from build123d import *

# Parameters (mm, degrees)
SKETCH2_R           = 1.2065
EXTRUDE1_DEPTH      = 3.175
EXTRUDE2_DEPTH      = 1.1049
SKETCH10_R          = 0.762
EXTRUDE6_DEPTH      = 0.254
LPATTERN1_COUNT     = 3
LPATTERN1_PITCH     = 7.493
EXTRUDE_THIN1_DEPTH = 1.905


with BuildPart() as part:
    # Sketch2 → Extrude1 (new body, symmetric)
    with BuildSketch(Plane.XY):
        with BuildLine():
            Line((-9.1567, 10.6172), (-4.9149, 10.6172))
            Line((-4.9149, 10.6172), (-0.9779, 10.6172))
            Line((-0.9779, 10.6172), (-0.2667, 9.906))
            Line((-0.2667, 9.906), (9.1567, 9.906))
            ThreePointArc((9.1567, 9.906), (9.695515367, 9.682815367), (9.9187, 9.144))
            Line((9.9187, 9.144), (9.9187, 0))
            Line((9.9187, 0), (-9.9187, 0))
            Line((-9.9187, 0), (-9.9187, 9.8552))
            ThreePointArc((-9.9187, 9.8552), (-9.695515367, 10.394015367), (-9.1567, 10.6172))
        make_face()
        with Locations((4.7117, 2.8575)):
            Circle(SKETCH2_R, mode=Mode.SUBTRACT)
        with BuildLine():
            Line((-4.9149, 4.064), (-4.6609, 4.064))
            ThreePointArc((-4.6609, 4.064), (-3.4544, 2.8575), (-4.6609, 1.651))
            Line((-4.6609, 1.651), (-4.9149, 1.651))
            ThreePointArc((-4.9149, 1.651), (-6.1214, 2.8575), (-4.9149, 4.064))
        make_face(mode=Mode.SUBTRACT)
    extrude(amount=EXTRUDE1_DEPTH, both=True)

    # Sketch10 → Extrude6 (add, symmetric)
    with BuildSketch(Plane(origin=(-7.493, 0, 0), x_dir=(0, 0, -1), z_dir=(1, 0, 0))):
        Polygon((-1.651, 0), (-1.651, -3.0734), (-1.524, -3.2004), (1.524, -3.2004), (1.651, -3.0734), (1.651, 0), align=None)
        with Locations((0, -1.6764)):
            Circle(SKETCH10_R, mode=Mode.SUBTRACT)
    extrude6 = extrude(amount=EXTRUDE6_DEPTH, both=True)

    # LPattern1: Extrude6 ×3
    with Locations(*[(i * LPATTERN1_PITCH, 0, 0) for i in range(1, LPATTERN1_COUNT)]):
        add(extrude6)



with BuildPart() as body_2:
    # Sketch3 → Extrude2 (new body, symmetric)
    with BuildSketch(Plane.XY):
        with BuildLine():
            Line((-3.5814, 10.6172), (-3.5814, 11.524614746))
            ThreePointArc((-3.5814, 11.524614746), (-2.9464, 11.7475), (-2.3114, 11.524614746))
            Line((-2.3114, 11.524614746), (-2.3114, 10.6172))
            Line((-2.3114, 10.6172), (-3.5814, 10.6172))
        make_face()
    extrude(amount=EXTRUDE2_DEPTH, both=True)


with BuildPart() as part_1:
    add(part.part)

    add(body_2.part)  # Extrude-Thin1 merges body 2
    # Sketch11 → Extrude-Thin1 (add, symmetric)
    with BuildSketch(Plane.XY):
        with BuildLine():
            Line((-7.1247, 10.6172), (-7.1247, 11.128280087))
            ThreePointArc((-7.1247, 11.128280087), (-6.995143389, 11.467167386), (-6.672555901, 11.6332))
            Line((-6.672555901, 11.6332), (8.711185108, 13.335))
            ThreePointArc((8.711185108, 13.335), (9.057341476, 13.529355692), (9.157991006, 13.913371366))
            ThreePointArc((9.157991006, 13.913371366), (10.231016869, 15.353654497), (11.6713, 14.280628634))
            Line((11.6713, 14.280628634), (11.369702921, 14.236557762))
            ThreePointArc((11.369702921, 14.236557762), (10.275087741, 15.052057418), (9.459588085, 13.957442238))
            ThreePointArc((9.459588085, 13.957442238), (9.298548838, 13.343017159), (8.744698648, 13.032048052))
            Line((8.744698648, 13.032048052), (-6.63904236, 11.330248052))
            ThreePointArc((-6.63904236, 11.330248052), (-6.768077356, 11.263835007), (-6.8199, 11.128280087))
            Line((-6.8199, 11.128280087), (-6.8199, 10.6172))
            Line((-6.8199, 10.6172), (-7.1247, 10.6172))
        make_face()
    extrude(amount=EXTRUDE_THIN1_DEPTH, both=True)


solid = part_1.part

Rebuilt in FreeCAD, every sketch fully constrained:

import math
import FreeCAD as App
import Part
import Sketcher
Q = App.Units.Quantity

doc = App.newDocument("Part")
body = doc.addObject("PartDesign::Body", "Body")

# Sketch on XY plane
sketch1 = body.newObject("Sketcher::SketchObject", "Sketch")
sketch1.AttachmentSupport = (doc.getObject("XY_Plane"), [""])
sketch1.MapMode = "FlatFace"
sketch1.addGeometry(Part.LineSegment(App.Vector(-0.98, 10.62, 0), App.Vector(-9.16, 10.62, 0)), False)
sketch1.addGeometry(Part.ArcOfCircle(Part.Circle(App.Vector(-9.16, 9.86, 0), App.Vector(0, 0, 1), 0.76), math.radians(90), math.radians(180)), False)
sketch1.addGeometry(Part.LineSegment(App.Vector(-9.92, 9.86, 0), App.Vector(-9.92, 0, 0)), False)
sketch1.addGeometry(Part.LineSegment(App.Vector(-9.92, 0, 0), App.Vector(9.92, 0, 0)), False)
sketch1.addGeometry(Part.LineSegment(App.Vector(9.92, 0, 0), App.Vector(9.92, 9.14, 0)), False)
sketch1.addGeometry(Part.ArcOfCircle(Part.Circle(App.Vector(9.16, 9.14, 0), App.Vector(0, 0, 1), 0.76), math.radians(0), math.radians(90)), False)
sketch1.addGeometry(Part.LineSegment(App.Vector(9.16, 9.91, 0), App.Vector(-0.27, 9.91, 0)), False)
sketch1.addGeometry(Part.LineSegment(App.Vector(-0.27, 9.91, 0), App.Vector(-0.98, 10.62, 0)), False)
sketch1.addGeometry(Part.Circle(App.Vector(4.71, 2.86, 0), App.Vector(0, 0, 1), 1.21), False)
sketch1.addGeometry(Part.LineSegment(App.Vector(-4.91, 4.06, 0), App.Vector(-4.66, 4.06, 0)), False)
sketch1.addGeometry(Part.ArcOfCircle(Part.Circle(App.Vector(-4.66, 2.86, 0), App.Vector(0, 0, 1), 1.21), math.radians(-90), math.radians(90)), False)
sketch1.addGeometry(Part.LineSegment(App.Vector(-4.66, 1.65, 0), App.Vector(-4.91, 1.65, 0)), False)
sketch1.addGeometry(Part.ArcOfCircle(Part.Circle(App.Vector(-4.91, 2.86, 0), App.Vector(0, 0, 1), 1.21), math.radians(90), math.radians(270)), False)
sketch1.addConstraint(Sketcher.Constraint("Tangent", 0, 2, 1, 1))
sketch1.addConstraint(Sketcher.Constraint("Tangent", 1, 2, 2, 1))
sketch1.addConstraint(Sketcher.Constraint("Coincident", 2, 2, 3, 1))
sketch1.addConstraint(Sketcher.Constraint("Coincident", 3, 2, 4, 1))
sketch1.addConstraint(Sketcher.Constraint("Tangent", 4, 2, 5, 1))
sketch1.addConstraint(Sketcher.Constraint("Tangent", 5, 2, 6, 1))
sketch1.addConstraint(Sketcher.Constraint("Coincident", 6, 2, 7, 1))
sketch1.addConstraint(Sketcher.Constraint("Coincident", 7, 2, 0, 1))
sketch1.addConstraint(Sketcher.Constraint("Tangent", 9, 2, 10, 2))
sketch1.addConstraint(Sketcher.Constraint("Tangent", 10, 1, 11, 1))
sketch1.addConstraint(Sketcher.Constraint("Tangent", 11, 2, 12, 2))
sketch1.addConstraint(Sketcher.Constraint("Tangent", 12, 1, 9, 1))
sketch1.addConstraint(Sketcher.Constraint("Horizontal", 0))
sketch1.addConstraint(Sketcher.Constraint("Vertical", 2))
sketch1.addConstraint(Sketcher.Constraint("Horizontal", 3))
sketch1.addConstraint(Sketcher.Constraint("Vertical", 4))
sketch1.addConstraint(Sketcher.Constraint("Horizontal", 6))
sketch1.addConstraint(Sketcher.Constraint("Horizontal", 9))
sketch1.addConstraint(Sketcher.Constraint("Horizontal", 11))
sketch1.addConstraint(Sketcher.Constraint("Equal", 1, 5))
sketch1.addConstraint(Sketcher.Constraint("Equal", 8, 10))
sketch1.addConstraint(Sketcher.Constraint("Symmetric", 2, 2, 3, 2, -1, 1))
sketch1.addConstraint(Sketcher.Constraint("Horizontal", 8, 3, 10, 3))
sketch1.addConstraint(Sketcher.Constraint("Radius", 1, Q("0.03 in")))
sketch1.addConstraint(Sketcher.Constraint("Diameter", 8, Q("0.095 in")))
sketch1.addConstraint(Sketcher.Constraint("Angle", 7, Q("135 deg")))
sketch1.addConstraint(Sketcher.Constraint("DistanceX", 9, 1, 9, 2, Q("0.01 in")))
sketch1.addConstraint(Sketcher.Constraint("DistanceY", 4, 1, 4, 2, Q("0.36 in")))
sketch1.addConstraint(Sketcher.Constraint("DistanceX", 0, 2, 0, 1, Q("0.322 in")))
sketch1.addConstraint(Sketcher.Constraint("DistanceX", 3, 1, 3, 2, Q("0.781 in")))
sketch1.addConstraint(Sketcher.Constraint("DistanceX", 6, 2, 6, 1, Q("0.371 in")))
sketch1.addConstraint(Sketcher.Constraint("DistanceY", -1, 1, 9, 2, Q("0.16 in")))
sketch1.addConstraint(Sketcher.Constraint("DistanceX", 8, 3, 5, 3, Q("0.175 in")))
sketch1.addConstraint(Sketcher.Constraint("DistanceX", 1, 3, 10, 3, Q("0.177 in")))
pad1 = body.newObject("PartDesign::Pad", "Pad")
pad1.Profile = sketch1
pad1.Length = Q("0.25 in")
pad1.Midplane = True

# Sketch on YZ plane
sketch2 = body.newObject("Sketcher::SketchObject", "Sketch001")
sketch2.AttachmentSupport = (doc.getObject("YZ_Plane"), [""])
sketch2.MapMode = "FlatFace"
sketch2.AttachmentOffset = App.Placement(App.Vector(0, 0, -0.295 * 25.4), App.Rotation())
sketch2.addGeometry(Part.LineSegment(App.Vector(0, 1.65, 0), App.Vector(-3.07, 1.65, 0)), False)
sketch2.addGeometry(Part.LineSegment(App.Vector(-3.07, 1.65, 0), App.Vector(-3.2, 1.52, 0)), False)
sketch2.addGeometry(Part.LineSegment(App.Vector(-3.2, 1.52, 0), App.Vector(-3.2, -1.52, 0)), False)
sketch2.addGeometry(Part.LineSegment(App.Vector(-3.2, -1.52, 0), App.Vector(-3.07, -1.65, 0)), False)
sketch2.addGeometry(Part.LineSegment(App.Vector(-3.07, -1.65, 0), App.Vector(0, -1.65, 0)), False)
sketch2.addGeometry(Part.LineSegment(App.Vector(0, -1.65, 0), App.Vector(0, 1.65, 0)), False)
sketch2.addGeometry(Part.Circle(App.Vector(-1.68, 0, 0), App.Vector(0, 0, 1), 0.76), False)
sketch2.addConstraint(Sketcher.Constraint("Coincident", 0, 2, 1, 1))
sketch2.addConstraint(Sketcher.Constraint("Coincident", 1, 2, 2, 1))
sketch2.addConstraint(Sketcher.Constraint("Coincident", 2, 2, 3, 1))
sketch2.addConstraint(Sketcher.Constraint("Coincident", 3, 2, 4, 1))
sketch2.addConstraint(Sketcher.Constraint("Coincident", 4, 2, 5, 1))
sketch2.addConstraint(Sketcher.Constraint("Coincident", 5, 2, 0, 1))
sketch2.addConstraint(Sketcher.Constraint("Horizontal", 0))
sketch2.addConstraint(Sketcher.Constraint("Vertical", 2))
sketch2.addConstraint(Sketcher.Constraint("Horizontal", 4))
sketch2.addConstraint(Sketcher.Constraint("Vertical", 5))
sketch2.addConstraint(Sketcher.Constraint("Symmetric", 4, 2, 5, 2, -1, 1))
sketch2.addConstraint(Sketcher.Constraint("PointOnObject", 6, 3, -1))
sketch2.addConstraint(Sketcher.Constraint("Perpendicular", 1, 3))
sketch2.addConstraint(Sketcher.Constraint("Vertical", 0, 2, 3, 2))
sketch2.addConstraint(Sketcher.Constraint("Equal", 1, 3))
sketch2.addConstraint(Sketcher.Constraint("Diameter", 6, Q("0.06 in")))
sketch2.addConstraint(Sketcher.Constraint("DistanceY", 2, 2, 2, 1, Q("0.12 in")))
sketch2.addConstraint(Sketcher.Constraint("DistanceY", 5, 1, 5, 2, Q("0.13 in")))
sketch2.addConstraint(Sketcher.Constraint("DistanceX", 0, 2, 0, 1, Q("0.121 in")))
sketch2.addConstraint(Sketcher.Constraint("DistanceX", 1, 2, 6, 3, Q("0.06 in")))
pad2 = body.newObject("PartDesign::Pad", "Pad001")
pad2.Profile = sketch2
pad2.Length = Q("0.02 in")
pad2.Midplane = True
doc.recompute()

linearpattern = body.newObject("PartDesign::LinearPattern", "LinearPattern")
linearpattern.Originals = [pad2]
linearpattern.Direction = (doc.getObject("X_Axis"), [""])
linearpattern.Mode = "offset"
linearpattern.Offset = Q("0.295 in")
linearpattern.Occurrences = 3
body.Tip = linearpattern
body2 = doc.addObject("PartDesign::Body", "Body001")

# Sketch on XY plane
sketch3 = body2.newObject("Sketcher::SketchObject", "Sketch002")
sketch3.AttachmentSupport = (doc.getObject("XY_Plane001"), [""])
sketch3.MapMode = "FlatFace"
sketch3.addGeometry(Part.LineSegment(App.Vector(-3.6, 11.5, 0), App.Vector(-3.6, 10.6, 0)), False)
sketch3.addGeometry(Part.LineSegment(App.Vector(-3.6, 10.6, 0), App.Vector(-2.3, 10.6, 0)), False)
sketch3.addGeometry(Part.LineSegment(App.Vector(-2.3, 10.6, 0), App.Vector(-2.3, 11.5, 0)), False)
sketch3.addGeometry(Part.ArcOfCircle(Part.Circle(App.Vector(-2.9, 10.7, 0), App.Vector(0, 0, 1), 1), math.radians(51), math.radians(129)), False)
sketch3.addConstraint(Sketcher.Constraint("Coincident", 0, 2, 1, 1))
sketch3.addConstraint(Sketcher.Constraint("Coincident", 1, 2, 2, 1))
sketch3.addConstraint(Sketcher.Constraint("Coincident", 2, 2, 3, 1))
sketch3.addConstraint(Sketcher.Constraint("Coincident", 3, 2, 0, 1))
sketch3.addConstraint(Sketcher.Constraint("Vertical", 0))
sketch3.addConstraint(Sketcher.Constraint("Horizontal", 1))
sketch3.addConstraint(Sketcher.Constraint("Vertical", 2))
sketch3.addConstraint(Sketcher.Constraint("Horizontal", 2, 2, 3, 2))
sketch3.addConstraint(Sketcher.Constraint("Radius", 3, Q("0.04 in")))
sketch3.addConstraint(Sketcher.Constraint("DistanceX", 1, 1, 1, 2, Q("0.05 in")))
sketch3.addConstraint(Sketcher.Constraint("DistanceX", 3, 3, -1, 1, Q("0.116 in")))
sketch3.addConstraint(Sketcher.Constraint("DistanceY", -1, 1, 0, 2, Q("0.418 in")))
sketch3.addConstraint(Sketcher.Constraint("DistanceY", -1, 1, 3, 3, Q("0.4225 in")))
pad3 = body2.newObject("PartDesign::Pad", "Pad002")
pad3.Profile = sketch3
pad3.Length = Q("0.087 in")
pad3.Midplane = True
doc.recompute()

boolean = body.newObject("PartDesign::Boolean", "Boolean")
boolean.Type = "Fuse"
boolean.addObjects([body2])

# Sketch on XY plane
sketch4 = body.newObject("Sketcher::SketchObject", "Sketch003")
sketch4.AttachmentSupport = (doc.getObject("XY_Plane"), [""])
sketch4.MapMode = "FlatFace"
sketch4.addGeometry(Part.LineSegment(App.Vector(-7.12, 11.13, 0), App.Vector(-7.12, 10.62, 0)), False)
sketch4.addGeometry(Part.LineSegment(App.Vector(-7.12, 10.62, 0), App.Vector(-6.82, 10.62, 0)), False)
sketch4.addGeometry(Part.LineSegment(App.Vector(-6.82, 10.62, 0), App.Vector(-6.82, 11.13, 0)), False)
sketch4.addGeometry(Part.ArcOfCircle(Part.Circle(App.Vector(-6.62, 11.13, 0), App.Vector(0, 0, 1), 0.2), math.radians(96), math.radians(180)), False)
sketch4.addGeometry(Part.LineSegment(App.Vector(-6.64, 11.33, 0), App.Vector(8.74, 13.03, 0)), False)
sketch4.addGeometry(Part.ArcOfCircle(Part.Circle(App.Vector(8.66, 13.84, 0), App.Vector(0, 0, 1), 0.81), math.radians(-84), math.radians(8)), False)
sketch4.addGeometry(Part.ArcOfCircle(Part.Circle(App.Vector(10.41, 14.1, 0), App.Vector(0, 0, 1), 0.97), math.radians(8), math.radians(188)), False)
sketch4.addGeometry(Part.LineSegment(App.Vector(11.37, 14.24, 0), App.Vector(11.67, 14.28, 0)), False)
sketch4.addGeometry(Part.ArcOfCircle(Part.Circle(App.Vector(10.41, 14.1, 0), App.Vector(0, 0, 1), 1.27), math.radians(8), math.radians(188)), False)
sketch4.addGeometry(Part.ArcOfCircle(Part.Circle(App.Vector(8.66, 13.84, 0), App.Vector(0, 0, 1), 0.51), math.radians(-84), math.radians(8)), False)
sketch4.addGeometry(Part.LineSegment(App.Vector(8.71, 13.34, 0), App.Vector(-6.67, 11.63, 0)), False)
sketch4.addGeometry(Part.ArcOfCircle(Part.Circle(App.Vector(-6.62, 11.13, 0), App.Vector(0, 0, 1), 0.51), math.radians(96), math.radians(180)), False)
sketch4.addConstraint(Sketcher.Constraint("Coincident", 0, 2, 1, 1))
sketch4.addConstraint(Sketcher.Constraint("Coincident", 1, 2, 2, 1))
sketch4.addConstraint(Sketcher.Constraint("Tangent", 2, 2, 3, 2))
sketch4.addConstraint(Sketcher.Constraint("Tangent", 3, 1, 4, 1))
sketch4.addConstraint(Sketcher.Constraint("Tangent", 4, 2, 5, 1))
sketch4.addConstraint(Sketcher.Constraint("Tangent", 5, 2, 6, 2))
sketch4.addConstraint(Sketcher.Constraint("Coincident", 6, 1, 7, 1))
sketch4.addConstraint(Sketcher.Constraint("Coincident", 7, 2, 8, 1))
sketch4.addConstraint(Sketcher.Constraint("Tangent", 8, 2, 9, 2))
sketch4.addConstraint(Sketcher.Constraint("Tangent", 9, 1, 10, 1))
sketch4.addConstraint(Sketcher.Constraint("Tangent", 10, 2, 11, 1))
sketch4.addConstraint(Sketcher.Constraint("Tangent", 11, 2, 0, 1))
sketch4.addConstraint(Sketcher.Constraint("Vertical", 0))
sketch4.addConstraint(Sketcher.Constraint("Horizontal", 1))
sketch4.addConstraint(Sketcher.Constraint("Vertical", 2))
sketch4.addConstraint(Sketcher.Constraint("Coincident", 8, 3, 6, 3))
sketch4.addConstraint(Sketcher.Constraint("Coincident", 9, 3, 5, 3))
sketch4.addConstraint(Sketcher.Constraint("Coincident", 11, 3, 3, 3))
sketch4.addConstraint(Sketcher.Constraint("Equal", 9, 11))
sketch4.addConstraint(Sketcher.Constraint("Parallel", 4, 10))
sketch4.addConstraint(Sketcher.Constraint("Radius", 8, Q("0.05 in")))
sketch4.addConstraint(Sketcher.Constraint("Radius", 9, Q("0.02 in")))
sketch4.addConstraint(Sketcher.Constraint("Radius", 3, Q("0.008 in")))
sketch4.addConstraint(Sketcher.Constraint("DistanceY", 1, 2, 10, 2, Q("0.04 in")))
sketch4.addConstraint(Sketcher.Constraint("DistanceY", -1, 1, 6, 3, Q("0.555 in")))
sketch4.addConstraint(Sketcher.Constraint("DistanceY", -1, 1, 0, 2, Q("0.418 in")))
sketch4.addConstraint(Sketcher.Constraint("DistanceY", -1, 1, 9, 1, Q("0.525 in")))
sketch4.addConstraint(Sketcher.Constraint("DistanceX", 3, 3, -1, 1, Q("0.2605 in")))
sketch4.addConstraint(Sketcher.Constraint("DistanceX", -1, 1, 7, 2, Q("0.4595 in")))
sketch4.addConstraint(Sketcher.Constraint("DistanceX", -1, 1, 4, 2, Q("8.744699 mm")))
sketch4.addConstraint(Sketcher.Constraint("DistanceY", 6, 1, 7, 2, Q("0.044071 mm")))
pad4 = body.newObject("PartDesign::Pad", "Pad003")
pad4.Profile = sketch4
pad4.Length = Q("0.15 in")
pad4.Midplane = True

doc.recompute()
